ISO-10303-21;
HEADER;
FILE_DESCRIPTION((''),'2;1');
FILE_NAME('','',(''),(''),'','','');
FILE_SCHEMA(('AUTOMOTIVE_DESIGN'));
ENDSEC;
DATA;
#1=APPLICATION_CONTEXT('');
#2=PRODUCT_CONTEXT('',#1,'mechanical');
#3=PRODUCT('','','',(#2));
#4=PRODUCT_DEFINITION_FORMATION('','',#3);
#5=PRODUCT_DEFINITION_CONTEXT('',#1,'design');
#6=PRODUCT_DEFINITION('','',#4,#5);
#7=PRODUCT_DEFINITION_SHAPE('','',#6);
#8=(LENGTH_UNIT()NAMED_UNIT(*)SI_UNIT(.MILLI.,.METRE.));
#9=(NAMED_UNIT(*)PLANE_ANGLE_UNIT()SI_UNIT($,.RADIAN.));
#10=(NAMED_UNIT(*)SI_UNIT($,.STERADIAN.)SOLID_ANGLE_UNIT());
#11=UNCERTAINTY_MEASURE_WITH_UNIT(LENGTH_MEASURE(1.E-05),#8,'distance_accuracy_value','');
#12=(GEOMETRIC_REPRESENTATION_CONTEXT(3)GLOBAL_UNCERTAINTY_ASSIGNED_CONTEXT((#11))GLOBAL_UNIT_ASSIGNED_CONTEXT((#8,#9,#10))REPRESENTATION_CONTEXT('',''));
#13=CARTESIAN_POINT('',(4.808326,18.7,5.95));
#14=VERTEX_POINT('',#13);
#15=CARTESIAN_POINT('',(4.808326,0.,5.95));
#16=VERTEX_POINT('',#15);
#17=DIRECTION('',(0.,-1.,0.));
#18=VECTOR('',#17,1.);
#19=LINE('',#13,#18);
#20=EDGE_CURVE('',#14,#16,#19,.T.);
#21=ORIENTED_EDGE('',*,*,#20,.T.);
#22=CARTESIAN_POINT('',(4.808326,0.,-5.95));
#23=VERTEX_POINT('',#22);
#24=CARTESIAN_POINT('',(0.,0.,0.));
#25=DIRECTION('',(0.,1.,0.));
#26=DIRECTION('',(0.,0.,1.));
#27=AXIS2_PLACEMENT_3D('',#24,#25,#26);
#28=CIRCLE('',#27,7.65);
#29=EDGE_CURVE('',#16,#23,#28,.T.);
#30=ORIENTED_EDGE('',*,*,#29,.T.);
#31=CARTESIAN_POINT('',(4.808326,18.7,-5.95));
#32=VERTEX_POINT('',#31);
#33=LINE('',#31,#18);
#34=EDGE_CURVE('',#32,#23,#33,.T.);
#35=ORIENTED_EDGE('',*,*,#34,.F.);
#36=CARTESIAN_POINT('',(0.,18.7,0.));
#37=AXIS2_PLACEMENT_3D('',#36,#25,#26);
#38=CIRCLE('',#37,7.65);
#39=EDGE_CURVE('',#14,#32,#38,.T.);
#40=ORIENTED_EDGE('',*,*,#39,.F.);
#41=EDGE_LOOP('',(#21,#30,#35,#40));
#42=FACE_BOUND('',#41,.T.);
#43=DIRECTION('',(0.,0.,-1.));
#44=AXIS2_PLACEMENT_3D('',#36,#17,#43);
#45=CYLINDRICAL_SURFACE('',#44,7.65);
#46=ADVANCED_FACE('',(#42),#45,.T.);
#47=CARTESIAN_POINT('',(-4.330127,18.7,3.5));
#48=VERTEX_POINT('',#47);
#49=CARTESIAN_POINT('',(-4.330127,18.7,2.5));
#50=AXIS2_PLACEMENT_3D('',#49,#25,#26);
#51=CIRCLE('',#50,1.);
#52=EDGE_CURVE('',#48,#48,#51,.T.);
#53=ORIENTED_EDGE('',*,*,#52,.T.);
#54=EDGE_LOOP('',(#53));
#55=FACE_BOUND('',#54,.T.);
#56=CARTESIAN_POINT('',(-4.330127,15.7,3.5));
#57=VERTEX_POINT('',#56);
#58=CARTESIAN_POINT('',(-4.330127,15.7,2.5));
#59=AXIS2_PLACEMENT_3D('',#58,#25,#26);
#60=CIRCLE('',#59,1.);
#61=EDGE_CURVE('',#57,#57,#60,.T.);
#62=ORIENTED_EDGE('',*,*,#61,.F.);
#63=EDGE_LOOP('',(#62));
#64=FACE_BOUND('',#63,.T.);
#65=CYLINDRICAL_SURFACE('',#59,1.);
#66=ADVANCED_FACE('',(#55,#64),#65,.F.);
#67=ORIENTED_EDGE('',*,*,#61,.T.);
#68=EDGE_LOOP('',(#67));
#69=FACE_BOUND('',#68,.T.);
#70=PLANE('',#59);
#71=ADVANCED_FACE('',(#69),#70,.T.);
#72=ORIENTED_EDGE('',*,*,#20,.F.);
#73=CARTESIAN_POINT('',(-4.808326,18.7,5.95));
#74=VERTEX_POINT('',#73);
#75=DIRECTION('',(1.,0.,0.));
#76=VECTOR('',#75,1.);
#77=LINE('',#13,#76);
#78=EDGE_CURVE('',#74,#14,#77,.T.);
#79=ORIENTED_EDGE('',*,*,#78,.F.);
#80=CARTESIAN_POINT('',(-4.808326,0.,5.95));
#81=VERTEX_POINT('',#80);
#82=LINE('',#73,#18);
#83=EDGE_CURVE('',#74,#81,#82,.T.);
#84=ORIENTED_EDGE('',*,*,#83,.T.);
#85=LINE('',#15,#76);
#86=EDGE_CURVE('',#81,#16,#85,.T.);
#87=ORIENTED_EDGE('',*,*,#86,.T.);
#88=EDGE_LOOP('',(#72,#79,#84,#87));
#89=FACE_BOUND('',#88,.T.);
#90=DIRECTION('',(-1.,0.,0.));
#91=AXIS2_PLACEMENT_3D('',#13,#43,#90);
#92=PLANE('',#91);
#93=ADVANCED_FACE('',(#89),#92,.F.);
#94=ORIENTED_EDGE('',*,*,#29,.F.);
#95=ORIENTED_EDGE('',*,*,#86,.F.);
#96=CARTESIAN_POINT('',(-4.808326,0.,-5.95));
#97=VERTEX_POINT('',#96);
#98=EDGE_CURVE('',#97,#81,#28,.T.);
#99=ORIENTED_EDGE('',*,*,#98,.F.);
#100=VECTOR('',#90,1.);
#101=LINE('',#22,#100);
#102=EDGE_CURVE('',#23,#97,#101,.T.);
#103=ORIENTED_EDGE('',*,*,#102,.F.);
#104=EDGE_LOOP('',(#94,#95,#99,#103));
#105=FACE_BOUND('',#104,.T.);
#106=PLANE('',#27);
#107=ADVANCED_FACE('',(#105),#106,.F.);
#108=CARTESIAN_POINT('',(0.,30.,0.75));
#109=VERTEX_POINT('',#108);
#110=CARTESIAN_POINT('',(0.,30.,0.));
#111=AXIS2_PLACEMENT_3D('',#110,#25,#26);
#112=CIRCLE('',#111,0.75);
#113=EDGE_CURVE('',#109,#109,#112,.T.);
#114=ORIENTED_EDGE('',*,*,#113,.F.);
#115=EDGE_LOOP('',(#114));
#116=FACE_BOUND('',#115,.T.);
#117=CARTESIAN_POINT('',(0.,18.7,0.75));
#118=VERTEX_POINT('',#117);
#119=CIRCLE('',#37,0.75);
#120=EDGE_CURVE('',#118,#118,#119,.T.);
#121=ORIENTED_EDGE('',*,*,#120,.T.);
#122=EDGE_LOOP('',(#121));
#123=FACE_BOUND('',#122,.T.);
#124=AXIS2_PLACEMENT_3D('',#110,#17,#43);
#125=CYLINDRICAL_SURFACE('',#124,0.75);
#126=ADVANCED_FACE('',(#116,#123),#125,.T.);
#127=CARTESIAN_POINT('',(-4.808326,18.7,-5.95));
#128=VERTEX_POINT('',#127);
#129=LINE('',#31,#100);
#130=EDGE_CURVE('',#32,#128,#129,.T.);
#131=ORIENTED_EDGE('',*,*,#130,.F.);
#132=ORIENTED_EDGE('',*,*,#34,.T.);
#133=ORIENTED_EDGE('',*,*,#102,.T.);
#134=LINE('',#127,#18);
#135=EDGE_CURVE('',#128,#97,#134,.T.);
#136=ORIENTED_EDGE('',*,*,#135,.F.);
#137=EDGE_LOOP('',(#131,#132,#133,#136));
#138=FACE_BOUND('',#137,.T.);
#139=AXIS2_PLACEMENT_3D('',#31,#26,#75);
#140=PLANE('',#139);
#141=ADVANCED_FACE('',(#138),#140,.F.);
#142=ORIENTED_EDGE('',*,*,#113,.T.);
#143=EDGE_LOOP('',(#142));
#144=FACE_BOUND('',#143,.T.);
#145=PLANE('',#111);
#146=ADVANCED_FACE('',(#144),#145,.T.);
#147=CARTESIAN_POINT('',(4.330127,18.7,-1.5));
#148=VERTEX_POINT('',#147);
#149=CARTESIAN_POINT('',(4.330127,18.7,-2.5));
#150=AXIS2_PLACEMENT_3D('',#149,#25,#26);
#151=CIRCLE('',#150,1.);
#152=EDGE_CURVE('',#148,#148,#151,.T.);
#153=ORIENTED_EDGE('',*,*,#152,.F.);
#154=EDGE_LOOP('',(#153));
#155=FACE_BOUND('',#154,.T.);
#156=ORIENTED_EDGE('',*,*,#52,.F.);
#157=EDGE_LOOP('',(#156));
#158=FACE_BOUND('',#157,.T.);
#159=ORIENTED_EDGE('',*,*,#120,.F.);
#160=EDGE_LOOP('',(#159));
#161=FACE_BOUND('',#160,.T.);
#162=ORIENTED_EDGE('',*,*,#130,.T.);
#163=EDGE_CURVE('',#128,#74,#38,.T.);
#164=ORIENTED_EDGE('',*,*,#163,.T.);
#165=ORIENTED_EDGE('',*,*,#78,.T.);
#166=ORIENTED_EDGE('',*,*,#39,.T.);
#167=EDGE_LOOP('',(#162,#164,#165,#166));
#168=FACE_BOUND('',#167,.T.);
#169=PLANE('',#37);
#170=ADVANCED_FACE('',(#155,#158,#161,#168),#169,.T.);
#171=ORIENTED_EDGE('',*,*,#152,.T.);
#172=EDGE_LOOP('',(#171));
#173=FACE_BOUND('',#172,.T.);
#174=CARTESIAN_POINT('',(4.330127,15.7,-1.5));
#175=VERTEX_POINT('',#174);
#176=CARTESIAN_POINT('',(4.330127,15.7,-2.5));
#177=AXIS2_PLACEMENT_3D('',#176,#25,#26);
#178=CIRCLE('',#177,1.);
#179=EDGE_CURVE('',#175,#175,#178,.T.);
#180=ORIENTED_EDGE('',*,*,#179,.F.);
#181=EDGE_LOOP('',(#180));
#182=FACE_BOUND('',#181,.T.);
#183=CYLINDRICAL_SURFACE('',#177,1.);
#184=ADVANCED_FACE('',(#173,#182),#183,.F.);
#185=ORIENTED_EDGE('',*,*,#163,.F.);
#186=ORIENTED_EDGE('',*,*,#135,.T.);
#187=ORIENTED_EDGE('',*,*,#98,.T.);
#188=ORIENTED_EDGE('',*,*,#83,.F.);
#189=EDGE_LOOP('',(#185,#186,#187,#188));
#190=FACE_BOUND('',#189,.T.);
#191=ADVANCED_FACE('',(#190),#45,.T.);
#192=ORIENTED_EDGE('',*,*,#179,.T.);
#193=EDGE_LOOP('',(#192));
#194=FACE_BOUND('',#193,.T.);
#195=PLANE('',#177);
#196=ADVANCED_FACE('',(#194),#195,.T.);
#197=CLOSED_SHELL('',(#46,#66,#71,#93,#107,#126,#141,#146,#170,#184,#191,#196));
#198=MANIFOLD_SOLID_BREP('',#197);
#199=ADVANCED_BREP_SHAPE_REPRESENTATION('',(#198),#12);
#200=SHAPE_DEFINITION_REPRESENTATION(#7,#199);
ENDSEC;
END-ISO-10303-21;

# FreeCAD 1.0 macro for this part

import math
import FreeCAD as App
import Part
import Sketcher

V = App.Vector
Q = App.Units.Quantity

doc = App.newDocument("Part")
params = doc.addObject("Spreadsheet::Sheet", "Params")
for row, (alias, value) in enumerate([
    ("sketch1_radius", "7.65 mm"),
    ("pad1_length", "18.7 mm"),
    ("sketch2_diameter", "1.5 mm"),
    ("pad2_length", "11.3 mm"),
    ("sketch3_diameter", "2 mm"),
    ("pocket1_length", "3 mm"),
], start=1):
    params.set(f"A{row}", alias)
    params.set(f"B{row}", "=" + value)
    params.setAlias(f"B{row}", alias)

body = doc.addObject("PartDesign::Body", "Body")

sketch1 = body.newObject("Sketcher::SketchObject", "Sketch")
sketch1.AttachmentSupport = (doc.getObject("XZ_Plane"), [""])
sketch1.MapMode = "FlatFace"
sketch1.addGeometry([
    Part.LineSegment(V(5, -6, 0), V(-5, -6, 0)),
    Part.ArcOfCircle(Part.Circle(V(0, 0, 0), V(0, 0, 1), 8), math.radians(129), math.radians(231)),
    Part.LineSegment(V(-5, 6, 0), V(5, 6, 0)),
    Part.ArcOfCircle(Part.Circle(V(0, 0, 0), V(0, 0, 1), 8), math.radians(-51), math.radians(51)),
], False)
sketch1.addConstraint([
    Sketcher.Constraint("Coincident", 0, 2, 1, 2),
    Sketcher.Constraint("Coincident", 1, 1, 2, 1),
    Sketcher.Constraint("Coincident", 2, 2, 3, 2),
    Sketcher.Constraint("Coincident", 3, 1, 0, 1),
    Sketcher.Constraint("Horizontal", 0),
    Sketcher.Constraint("Horizontal", 2),
    Sketcher.Constraint("Coincident", 1, 3, -1, 1),
    Sketcher.Constraint("Coincident", 3, 3, -1, 1),
    Sketcher.Constraint("Equal", 1, 3),
    Sketcher.Constraint("Vertical", 0, 2, 1, 1),
    Sketcher.Constraint("Radius", 1, Q("7.65 mm")),
    Sketcher.Constraint("DistanceY", 0, 2, 1, 1, Q("11.9 mm")),
])
sketch1.setExpression("Constraints[10]", "Params.sketch1_radius")
pad1 = body.newObject("PartDesign::Pad", "Pad")
pad1.Profile = sketch1
pad1.setExpression("Length", "Params.pad1_length")
pad1.Reversed = True

sketch2 = body.newObject("Sketcher::SketchObject", "Sketch001")
sketch2.AttachmentSupport = (doc.getObject("XZ_Plane"), [""])
sketch2.MapMode = "FlatFace"
sketch2.AttachmentOffset = App.Placement(V(0, 0, -18.7), App.Rotation())
sketch2.addGeometry(Part.Circle(V(0, 0, 0), V(0, 0, 1), 0.8), False)
sketch2.addConstraint([
    Sketcher.Constraint("Coincident", 0, 3, -1, 1),
    Sketcher.Constraint("Diameter", 0, Q("1.5 mm")),
])
sketch2.setExpression("Constraints[1]", "Params.sketch2_diameter")
pad2 = body.newObject("PartDesign::Pad", "Pad001")
pad2.Profile = sketch2
pad2.setExpression("Length", "Params.pad2_length")
pad2.Reversed = True

sketch3 = body.newObject("Sketcher::SketchObject", "Sketch002")
sketch3.AttachmentSupport = (doc.getObject("XZ_Plane"), [""])
sketch3.MapMode = "FlatFace"
sketch3.AttachmentOffset = App.Placement(V(0, 0, -18.7), App.Rotation())
sketch3.addGeometry([
    Part.Circle(V(4.3, -2.5, 0), V(0, 0, 1), 1),
    Part.Circle(V(-4.3, 2.5, 0), V(0, 0, 1), 1),
], False)
sketch3.addConstraint([
    Sketcher.Constraint("Equal", 0, 1),
    Sketcher.Constraint("Symmetric", 0, 3, 1, 3, -1, 1),
    Sketcher.Constraint("Diameter", 0, Q("2 mm")),
    Sketcher.Constraint("DistanceY", 0, 3, 1, 3, Q("5 mm")),
    Sketcher.Constraint("DistanceX", -1, 1, 0, 3, Q("4.330127 mm")),
])
sketch3.setExpression("Constraints[2]", "Params.sketch3_diameter")
pocket1 = body.newObject("PartDesign::Pocket", "Pocket")
pocket1.Profile = sketch3
pocket1.setExpression("Length", "Params.pocket1_length")
pocket1.Reversed = True

doc.recompute()
